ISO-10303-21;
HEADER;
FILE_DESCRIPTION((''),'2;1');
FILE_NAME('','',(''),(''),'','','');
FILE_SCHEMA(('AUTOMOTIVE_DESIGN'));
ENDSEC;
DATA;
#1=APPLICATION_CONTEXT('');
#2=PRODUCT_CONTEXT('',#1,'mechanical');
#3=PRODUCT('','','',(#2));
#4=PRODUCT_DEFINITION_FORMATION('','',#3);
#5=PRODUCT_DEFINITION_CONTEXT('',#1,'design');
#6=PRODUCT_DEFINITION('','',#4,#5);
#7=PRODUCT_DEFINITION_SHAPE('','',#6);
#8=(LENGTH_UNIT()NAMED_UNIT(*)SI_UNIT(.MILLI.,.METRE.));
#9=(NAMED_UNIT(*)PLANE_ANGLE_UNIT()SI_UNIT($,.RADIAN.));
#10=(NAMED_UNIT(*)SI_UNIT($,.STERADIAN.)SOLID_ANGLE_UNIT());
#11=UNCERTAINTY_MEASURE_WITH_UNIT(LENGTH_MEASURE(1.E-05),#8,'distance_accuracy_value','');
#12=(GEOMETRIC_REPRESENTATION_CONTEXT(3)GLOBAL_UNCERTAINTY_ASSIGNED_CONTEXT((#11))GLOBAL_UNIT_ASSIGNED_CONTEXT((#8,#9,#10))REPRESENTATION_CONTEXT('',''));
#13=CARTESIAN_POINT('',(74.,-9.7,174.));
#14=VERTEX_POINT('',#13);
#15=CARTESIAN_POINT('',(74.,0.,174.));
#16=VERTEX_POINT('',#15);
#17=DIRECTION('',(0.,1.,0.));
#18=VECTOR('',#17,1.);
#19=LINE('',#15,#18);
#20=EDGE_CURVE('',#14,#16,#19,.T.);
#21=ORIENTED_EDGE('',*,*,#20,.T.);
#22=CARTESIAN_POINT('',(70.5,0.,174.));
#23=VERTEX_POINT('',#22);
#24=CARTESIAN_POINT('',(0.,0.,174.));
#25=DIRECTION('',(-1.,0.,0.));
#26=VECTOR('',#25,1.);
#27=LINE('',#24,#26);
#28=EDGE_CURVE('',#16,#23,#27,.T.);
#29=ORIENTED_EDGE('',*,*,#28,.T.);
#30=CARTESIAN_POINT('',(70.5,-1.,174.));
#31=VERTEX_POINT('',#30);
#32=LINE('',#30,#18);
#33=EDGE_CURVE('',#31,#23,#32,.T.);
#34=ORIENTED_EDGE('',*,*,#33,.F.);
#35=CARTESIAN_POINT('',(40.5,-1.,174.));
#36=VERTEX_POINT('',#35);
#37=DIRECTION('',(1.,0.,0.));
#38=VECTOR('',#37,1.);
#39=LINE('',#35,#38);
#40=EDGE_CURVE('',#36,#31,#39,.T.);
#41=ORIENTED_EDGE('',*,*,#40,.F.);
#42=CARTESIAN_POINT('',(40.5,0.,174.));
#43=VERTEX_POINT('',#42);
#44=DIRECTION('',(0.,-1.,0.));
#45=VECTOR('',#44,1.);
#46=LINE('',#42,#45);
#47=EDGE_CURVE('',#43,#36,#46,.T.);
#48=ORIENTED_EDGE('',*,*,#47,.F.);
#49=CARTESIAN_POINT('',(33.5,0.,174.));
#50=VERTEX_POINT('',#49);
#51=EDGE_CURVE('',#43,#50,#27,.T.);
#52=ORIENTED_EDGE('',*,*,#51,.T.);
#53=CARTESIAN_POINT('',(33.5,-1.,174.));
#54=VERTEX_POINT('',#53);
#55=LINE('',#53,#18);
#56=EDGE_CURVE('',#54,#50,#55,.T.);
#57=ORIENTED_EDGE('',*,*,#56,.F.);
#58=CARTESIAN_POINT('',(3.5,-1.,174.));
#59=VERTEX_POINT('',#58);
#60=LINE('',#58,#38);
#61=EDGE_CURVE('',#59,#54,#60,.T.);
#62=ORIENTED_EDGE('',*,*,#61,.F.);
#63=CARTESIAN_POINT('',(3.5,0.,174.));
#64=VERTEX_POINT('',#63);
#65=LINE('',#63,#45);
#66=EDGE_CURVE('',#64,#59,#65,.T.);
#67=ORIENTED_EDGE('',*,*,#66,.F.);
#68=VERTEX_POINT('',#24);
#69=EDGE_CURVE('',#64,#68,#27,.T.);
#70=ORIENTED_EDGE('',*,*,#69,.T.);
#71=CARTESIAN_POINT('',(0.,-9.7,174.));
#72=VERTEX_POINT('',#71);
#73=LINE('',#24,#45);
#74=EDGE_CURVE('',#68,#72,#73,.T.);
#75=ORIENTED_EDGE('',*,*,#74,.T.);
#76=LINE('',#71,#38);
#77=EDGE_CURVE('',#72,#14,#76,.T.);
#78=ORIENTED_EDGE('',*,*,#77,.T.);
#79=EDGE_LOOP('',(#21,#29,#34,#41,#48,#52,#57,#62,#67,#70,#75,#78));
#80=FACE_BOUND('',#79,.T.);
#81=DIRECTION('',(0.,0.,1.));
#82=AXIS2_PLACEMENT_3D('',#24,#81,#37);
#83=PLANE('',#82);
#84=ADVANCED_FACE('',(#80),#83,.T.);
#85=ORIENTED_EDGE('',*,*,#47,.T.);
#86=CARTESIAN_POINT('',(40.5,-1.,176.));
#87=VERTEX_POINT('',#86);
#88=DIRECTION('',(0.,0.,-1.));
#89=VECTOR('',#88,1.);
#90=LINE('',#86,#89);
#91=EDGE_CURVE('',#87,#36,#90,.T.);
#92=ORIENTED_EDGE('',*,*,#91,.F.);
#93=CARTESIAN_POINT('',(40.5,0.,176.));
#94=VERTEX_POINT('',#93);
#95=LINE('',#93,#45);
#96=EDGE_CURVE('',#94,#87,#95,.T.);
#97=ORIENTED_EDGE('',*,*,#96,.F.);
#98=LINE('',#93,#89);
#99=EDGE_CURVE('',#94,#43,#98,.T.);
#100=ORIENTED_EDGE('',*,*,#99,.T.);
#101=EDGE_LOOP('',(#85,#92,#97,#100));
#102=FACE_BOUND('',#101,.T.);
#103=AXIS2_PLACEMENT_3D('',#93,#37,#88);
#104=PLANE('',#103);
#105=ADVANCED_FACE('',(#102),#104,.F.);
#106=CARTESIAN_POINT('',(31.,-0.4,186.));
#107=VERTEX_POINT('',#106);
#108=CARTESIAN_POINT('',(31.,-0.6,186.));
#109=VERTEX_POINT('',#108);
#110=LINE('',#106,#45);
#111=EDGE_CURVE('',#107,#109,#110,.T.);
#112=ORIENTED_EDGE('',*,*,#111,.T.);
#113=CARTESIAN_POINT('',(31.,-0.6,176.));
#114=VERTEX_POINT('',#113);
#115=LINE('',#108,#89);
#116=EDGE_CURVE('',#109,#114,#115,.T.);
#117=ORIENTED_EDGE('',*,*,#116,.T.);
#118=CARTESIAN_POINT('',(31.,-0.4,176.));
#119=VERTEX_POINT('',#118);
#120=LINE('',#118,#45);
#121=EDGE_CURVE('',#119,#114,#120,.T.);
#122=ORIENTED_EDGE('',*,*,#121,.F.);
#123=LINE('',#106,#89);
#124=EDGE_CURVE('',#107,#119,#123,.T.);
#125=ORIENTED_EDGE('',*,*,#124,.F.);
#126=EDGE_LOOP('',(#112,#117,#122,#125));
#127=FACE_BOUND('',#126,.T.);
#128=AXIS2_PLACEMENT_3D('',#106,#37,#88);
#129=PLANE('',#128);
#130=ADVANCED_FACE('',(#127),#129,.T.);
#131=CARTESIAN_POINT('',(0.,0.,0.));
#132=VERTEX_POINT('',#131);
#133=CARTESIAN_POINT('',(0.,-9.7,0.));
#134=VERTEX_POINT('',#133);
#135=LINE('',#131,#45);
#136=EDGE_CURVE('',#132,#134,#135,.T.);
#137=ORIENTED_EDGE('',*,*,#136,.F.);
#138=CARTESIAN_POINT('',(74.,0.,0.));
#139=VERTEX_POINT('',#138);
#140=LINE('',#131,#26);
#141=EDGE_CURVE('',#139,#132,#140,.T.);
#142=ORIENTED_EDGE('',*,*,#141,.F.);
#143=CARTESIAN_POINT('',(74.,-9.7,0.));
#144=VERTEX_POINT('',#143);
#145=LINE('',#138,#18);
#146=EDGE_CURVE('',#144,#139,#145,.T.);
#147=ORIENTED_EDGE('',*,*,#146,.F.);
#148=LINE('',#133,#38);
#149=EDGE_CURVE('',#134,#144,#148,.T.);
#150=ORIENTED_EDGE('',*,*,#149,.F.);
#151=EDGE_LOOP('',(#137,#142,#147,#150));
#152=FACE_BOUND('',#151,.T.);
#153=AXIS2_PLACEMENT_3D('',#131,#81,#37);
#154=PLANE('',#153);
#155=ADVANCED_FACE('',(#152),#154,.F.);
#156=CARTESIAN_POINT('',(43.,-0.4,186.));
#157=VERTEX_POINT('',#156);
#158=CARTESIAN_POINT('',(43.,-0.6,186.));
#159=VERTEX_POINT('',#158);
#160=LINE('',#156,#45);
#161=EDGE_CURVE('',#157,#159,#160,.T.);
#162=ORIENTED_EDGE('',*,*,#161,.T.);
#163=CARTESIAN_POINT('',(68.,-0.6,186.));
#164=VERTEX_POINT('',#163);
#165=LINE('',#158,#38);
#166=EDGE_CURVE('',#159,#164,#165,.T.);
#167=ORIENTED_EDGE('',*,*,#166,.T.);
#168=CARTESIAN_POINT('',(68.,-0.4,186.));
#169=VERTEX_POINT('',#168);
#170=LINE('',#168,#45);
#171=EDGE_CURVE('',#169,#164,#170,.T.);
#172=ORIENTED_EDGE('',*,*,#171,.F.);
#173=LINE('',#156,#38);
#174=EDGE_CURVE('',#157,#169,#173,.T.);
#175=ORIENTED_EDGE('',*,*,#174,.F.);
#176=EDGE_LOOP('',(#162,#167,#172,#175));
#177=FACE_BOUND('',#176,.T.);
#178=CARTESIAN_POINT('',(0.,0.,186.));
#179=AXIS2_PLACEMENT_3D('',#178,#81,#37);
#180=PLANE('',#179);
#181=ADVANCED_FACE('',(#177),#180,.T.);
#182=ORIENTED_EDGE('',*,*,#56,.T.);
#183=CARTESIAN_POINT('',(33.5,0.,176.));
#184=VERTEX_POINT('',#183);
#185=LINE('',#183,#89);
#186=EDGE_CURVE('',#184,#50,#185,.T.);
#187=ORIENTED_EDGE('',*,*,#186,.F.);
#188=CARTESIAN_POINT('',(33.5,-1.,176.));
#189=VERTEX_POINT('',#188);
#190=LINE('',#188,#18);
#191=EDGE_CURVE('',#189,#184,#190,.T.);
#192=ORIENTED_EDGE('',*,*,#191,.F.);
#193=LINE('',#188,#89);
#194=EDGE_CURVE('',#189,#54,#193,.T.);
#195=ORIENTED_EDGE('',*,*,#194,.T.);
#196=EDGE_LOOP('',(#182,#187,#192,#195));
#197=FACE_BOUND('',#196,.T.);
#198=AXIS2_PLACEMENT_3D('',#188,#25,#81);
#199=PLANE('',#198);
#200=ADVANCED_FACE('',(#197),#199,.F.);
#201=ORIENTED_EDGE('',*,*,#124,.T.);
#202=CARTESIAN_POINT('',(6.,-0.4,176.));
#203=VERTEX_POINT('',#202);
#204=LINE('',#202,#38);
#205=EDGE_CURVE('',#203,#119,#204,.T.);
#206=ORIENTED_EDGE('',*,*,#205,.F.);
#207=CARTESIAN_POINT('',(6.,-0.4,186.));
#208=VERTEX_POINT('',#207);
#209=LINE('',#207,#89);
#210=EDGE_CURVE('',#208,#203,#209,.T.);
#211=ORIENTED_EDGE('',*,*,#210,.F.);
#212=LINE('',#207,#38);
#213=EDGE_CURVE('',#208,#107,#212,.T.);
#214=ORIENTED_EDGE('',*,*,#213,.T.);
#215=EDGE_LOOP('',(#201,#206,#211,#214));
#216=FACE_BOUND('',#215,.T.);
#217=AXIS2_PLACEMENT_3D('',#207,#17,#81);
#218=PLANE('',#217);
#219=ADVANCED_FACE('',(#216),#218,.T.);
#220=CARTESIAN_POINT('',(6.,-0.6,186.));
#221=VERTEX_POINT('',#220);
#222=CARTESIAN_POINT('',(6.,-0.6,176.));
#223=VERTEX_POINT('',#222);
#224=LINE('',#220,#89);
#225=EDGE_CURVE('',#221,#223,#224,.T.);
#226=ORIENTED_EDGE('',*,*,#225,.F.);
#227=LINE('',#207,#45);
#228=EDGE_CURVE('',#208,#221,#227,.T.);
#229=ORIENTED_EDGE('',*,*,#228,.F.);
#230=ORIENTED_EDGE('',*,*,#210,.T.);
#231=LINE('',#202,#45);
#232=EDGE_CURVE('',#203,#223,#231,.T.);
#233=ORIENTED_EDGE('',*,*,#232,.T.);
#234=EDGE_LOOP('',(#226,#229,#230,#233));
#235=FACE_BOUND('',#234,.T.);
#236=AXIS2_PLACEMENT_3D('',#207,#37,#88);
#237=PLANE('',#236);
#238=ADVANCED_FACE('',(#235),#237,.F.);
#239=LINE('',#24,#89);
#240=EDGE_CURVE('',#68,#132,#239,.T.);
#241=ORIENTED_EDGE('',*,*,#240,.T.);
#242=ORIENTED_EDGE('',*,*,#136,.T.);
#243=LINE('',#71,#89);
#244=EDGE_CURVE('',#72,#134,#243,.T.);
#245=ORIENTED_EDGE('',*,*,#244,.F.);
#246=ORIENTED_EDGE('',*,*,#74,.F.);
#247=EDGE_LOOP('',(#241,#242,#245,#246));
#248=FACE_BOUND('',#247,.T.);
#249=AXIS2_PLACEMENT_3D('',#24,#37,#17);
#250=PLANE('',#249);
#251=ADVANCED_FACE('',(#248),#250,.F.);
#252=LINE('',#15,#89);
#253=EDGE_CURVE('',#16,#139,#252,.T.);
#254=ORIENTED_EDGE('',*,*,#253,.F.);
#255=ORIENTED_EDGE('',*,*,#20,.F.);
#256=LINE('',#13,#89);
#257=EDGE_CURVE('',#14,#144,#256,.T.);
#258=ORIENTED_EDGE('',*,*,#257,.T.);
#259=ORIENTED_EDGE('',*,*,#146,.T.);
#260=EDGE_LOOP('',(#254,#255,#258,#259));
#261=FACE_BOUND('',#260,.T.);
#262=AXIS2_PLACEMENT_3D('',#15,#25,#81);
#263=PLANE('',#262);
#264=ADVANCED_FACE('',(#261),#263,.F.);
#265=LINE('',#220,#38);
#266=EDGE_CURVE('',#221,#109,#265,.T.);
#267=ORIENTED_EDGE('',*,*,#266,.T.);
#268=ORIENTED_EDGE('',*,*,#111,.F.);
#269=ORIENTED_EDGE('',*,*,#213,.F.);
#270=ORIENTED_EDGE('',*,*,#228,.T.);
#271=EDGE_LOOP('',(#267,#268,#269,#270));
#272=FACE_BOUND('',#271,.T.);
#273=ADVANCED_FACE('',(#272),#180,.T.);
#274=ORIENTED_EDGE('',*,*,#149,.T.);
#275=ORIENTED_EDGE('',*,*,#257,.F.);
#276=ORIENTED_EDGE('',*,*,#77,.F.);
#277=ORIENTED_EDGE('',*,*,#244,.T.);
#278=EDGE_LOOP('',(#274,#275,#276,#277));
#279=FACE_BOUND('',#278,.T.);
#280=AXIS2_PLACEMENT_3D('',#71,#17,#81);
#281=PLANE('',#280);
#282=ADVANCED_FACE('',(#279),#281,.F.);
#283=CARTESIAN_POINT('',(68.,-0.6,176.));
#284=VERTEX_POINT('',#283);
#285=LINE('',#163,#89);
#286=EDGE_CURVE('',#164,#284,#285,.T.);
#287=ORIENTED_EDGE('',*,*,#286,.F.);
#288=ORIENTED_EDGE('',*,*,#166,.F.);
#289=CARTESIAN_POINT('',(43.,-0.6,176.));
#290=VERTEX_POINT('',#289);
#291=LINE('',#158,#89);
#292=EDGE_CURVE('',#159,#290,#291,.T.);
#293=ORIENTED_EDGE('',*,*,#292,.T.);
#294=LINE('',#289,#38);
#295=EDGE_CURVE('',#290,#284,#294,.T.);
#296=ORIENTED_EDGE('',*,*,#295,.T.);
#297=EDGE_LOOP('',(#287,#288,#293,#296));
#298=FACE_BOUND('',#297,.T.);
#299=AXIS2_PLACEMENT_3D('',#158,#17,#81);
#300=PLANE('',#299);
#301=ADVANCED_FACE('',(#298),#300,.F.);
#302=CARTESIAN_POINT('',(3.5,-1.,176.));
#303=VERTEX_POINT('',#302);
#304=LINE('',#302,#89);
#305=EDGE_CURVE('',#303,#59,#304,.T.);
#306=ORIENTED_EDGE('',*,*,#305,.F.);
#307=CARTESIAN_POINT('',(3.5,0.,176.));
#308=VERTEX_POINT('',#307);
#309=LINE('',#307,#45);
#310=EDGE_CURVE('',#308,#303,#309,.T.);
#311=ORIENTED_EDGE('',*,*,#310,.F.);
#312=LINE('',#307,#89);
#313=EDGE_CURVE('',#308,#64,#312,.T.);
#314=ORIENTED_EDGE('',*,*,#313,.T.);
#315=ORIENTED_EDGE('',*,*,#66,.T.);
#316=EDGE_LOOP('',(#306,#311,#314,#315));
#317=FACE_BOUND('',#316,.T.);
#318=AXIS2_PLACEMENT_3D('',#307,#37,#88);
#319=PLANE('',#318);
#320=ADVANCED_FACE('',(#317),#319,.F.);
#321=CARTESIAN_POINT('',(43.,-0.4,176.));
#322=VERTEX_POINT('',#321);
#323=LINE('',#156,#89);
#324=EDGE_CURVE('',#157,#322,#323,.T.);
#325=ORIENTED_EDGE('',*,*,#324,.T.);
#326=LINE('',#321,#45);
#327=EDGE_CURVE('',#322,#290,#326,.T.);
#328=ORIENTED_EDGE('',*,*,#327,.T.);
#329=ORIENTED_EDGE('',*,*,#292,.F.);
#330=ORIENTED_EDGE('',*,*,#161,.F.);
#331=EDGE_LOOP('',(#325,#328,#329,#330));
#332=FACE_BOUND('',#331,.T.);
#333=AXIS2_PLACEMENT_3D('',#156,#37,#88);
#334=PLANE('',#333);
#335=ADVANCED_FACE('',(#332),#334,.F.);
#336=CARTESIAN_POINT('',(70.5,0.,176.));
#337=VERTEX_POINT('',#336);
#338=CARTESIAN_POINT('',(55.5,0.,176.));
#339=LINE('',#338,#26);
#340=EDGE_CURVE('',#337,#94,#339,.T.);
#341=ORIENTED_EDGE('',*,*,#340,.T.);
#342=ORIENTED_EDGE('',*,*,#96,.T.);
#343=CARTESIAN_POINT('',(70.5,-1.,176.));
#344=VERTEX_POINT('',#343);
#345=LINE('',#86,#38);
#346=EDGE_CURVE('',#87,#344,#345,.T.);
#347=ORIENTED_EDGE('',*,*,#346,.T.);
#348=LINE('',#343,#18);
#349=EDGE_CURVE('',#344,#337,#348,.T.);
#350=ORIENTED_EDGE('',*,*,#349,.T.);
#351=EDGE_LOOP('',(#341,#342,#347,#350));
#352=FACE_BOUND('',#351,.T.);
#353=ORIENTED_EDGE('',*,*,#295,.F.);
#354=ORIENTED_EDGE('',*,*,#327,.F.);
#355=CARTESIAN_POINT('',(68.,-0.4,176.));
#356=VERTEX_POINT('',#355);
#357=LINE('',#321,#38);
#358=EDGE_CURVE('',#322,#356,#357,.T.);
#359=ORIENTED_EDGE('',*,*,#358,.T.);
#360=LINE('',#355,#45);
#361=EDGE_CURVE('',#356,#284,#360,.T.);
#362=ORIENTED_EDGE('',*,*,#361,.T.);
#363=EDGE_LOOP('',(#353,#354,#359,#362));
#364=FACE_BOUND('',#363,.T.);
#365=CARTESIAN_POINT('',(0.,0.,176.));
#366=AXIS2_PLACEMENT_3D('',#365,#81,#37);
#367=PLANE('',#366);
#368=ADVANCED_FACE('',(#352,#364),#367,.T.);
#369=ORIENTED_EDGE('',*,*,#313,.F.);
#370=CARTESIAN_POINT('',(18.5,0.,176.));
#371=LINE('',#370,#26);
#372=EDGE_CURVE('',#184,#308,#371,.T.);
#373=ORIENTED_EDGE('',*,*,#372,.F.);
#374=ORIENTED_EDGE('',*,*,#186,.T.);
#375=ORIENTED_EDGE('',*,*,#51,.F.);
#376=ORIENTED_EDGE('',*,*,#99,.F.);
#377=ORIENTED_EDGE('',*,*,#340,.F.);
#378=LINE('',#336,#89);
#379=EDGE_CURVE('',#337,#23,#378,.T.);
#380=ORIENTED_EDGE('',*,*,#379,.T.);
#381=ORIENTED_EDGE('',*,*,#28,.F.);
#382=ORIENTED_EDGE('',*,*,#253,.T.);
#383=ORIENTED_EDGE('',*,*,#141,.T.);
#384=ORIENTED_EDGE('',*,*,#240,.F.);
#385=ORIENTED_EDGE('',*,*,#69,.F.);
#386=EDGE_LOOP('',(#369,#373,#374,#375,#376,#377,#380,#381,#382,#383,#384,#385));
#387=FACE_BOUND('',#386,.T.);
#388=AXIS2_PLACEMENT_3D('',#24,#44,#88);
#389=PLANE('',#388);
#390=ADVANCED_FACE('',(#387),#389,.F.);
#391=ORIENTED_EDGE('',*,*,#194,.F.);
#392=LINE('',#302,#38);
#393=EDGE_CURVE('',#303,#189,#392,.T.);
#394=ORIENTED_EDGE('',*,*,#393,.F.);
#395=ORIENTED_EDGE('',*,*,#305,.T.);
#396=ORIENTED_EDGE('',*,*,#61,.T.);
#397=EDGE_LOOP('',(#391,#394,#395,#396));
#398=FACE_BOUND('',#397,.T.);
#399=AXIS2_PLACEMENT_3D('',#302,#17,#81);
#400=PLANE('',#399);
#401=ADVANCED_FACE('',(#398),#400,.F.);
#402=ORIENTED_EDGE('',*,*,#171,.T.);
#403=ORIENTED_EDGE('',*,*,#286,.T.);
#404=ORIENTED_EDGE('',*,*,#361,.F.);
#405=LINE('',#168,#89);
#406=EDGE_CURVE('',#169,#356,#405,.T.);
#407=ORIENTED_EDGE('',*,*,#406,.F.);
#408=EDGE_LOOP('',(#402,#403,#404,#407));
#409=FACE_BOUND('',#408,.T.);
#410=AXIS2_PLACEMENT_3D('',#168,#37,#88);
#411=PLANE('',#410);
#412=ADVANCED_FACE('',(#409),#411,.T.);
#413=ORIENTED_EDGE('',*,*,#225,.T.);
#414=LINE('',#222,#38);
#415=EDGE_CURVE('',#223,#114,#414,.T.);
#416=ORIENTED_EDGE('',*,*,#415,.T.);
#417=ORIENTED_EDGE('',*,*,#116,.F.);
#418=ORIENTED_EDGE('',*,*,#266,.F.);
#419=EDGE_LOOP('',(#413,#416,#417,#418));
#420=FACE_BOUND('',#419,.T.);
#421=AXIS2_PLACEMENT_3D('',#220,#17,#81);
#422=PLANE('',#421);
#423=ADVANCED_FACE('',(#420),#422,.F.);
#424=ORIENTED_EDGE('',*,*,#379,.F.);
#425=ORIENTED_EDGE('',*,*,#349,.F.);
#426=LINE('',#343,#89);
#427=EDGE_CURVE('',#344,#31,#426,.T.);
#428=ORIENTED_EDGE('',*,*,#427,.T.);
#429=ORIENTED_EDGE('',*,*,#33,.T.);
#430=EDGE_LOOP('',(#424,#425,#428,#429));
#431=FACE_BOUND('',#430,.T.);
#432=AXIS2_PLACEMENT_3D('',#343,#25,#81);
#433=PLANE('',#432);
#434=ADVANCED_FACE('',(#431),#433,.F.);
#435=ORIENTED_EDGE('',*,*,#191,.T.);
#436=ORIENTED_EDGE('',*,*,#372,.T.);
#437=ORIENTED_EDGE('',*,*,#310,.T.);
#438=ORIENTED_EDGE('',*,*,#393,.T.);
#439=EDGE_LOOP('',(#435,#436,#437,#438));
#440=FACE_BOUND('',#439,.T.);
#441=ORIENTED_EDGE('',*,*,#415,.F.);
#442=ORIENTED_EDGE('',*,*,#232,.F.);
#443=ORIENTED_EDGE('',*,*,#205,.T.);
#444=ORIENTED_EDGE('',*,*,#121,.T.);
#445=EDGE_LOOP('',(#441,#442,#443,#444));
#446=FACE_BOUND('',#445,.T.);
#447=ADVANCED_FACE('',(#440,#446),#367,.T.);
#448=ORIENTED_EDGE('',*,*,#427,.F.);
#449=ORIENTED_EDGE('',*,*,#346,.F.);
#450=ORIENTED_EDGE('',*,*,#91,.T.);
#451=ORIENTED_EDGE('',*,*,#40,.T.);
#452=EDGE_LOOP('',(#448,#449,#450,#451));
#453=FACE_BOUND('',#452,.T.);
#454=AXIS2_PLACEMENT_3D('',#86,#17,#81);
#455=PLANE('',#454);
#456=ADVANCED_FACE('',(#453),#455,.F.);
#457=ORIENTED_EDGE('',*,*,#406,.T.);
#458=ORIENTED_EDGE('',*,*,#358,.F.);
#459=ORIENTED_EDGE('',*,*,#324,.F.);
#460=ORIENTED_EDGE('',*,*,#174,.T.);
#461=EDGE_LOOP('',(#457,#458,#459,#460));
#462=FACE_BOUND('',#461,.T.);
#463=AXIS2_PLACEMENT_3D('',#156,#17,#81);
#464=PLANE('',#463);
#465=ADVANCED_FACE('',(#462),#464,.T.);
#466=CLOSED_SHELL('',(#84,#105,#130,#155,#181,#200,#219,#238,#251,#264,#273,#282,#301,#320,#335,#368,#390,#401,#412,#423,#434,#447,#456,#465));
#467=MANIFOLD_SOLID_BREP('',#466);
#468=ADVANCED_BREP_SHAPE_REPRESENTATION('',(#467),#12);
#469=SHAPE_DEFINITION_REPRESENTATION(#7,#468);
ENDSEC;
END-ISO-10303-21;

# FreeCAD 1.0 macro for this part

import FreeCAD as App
import Part
import Sketcher
from FreeCAD import Vector
Q = App.Units.Quantity


def add_polygon(sketch, points):
    """Adds a closed chain of lines whose ends are joined by coincident constraints."""
    first, n = sketch.GeometryCount, len(points)
    for a, b in zip(points, points[1:] + points[:1]):
        sketch.addGeometry(Part.LineSegment(App.Vector(*a, 0), App.Vector(*b, 0)), False)
    for i in range(n):
        sketch.addConstraint(Sketcher.Constraint("Coincident", first + i, 2, first + (i + 1) % n, 1))

doc = App.newDocument("Part")
body = doc.addObject("PartDesign::Body", "Body")

sketch1 = doc.addObject("Sketcher::SketchObject", "Sketch")
body.addObject(sketch1)
sketch1.AttachmentSupport = (doc.XY_Plane, [""])
sketch1.MapMode = "FlatFace"
add_polygon(sketch1, [(0, 0), (0, -10), (74, -10), (74, 0)])
sketch1.addConstraint([
    Sketcher.Constraint("Vertical", 0),
    Sketcher.Constraint("Horizontal", 1),
    Sketcher.Constraint("Vertical", 2),
    Sketcher.Constraint("Horizontal", 3),
    Sketcher.Constraint("Coincident", 3, 2, -1, 1),
    Sketcher.Constraint("DistanceX", 1, 1, 1, 2, Q("74 mm")),
    Sketcher.Constraint("DistanceY", 0, 2, 0, 1, Q("9.7 mm")),
])
pad1 = doc.addObject("PartDesign::Pad", "Pad")
body.addObject(pad1)
pad1.Profile = sketch1
pad1.Length = 174

sketch2 = doc.addObject("Sketcher::SketchObject", "Sketch001")
body.addObject(sketch2)
sketch2.AttachmentSupport = (doc.XY_Plane, [""])
sketch2.MapMode = "FlatFace"
sketch2.AttachmentOffset = App.Placement(Vector(0, 0, 174), App.Rotation())
add_polygon(sketch2, [(3.5, 0), (3.5, -1), (33.5, -1), (33.5, 0)])
add_polygon(sketch2, [(40.5, 0), (40.5, -1), (70.5, -1), (70.5, 0)])
sketch2.addConstraint([
    Sketcher.Constraint("Vertical", 0),
    Sketcher.Constraint("Horizontal", 1),
    Sketcher.Constraint("Vertical", 2),
    Sketcher.Constraint("Horizontal", 3),
    Sketcher.Constraint("Vertical", 4),
    Sketcher.Constraint("Horizontal", 5),
    Sketcher.Constraint("Vertical", 6),
    Sketcher.Constraint("Horizontal", 7),
    Sketcher.Constraint("PointOnObject", 2, 2, -1),
    Sketcher.Constraint("PointOnObject", 6, 2, -1),
    Sketcher.Constraint("Horizontal", 1, 2, 4, 2),
    Sketcher.Constraint("Equal", 3, 5),
    Sketcher.Constraint("DistanceX", 1, 1, 1, 2, Q("30 mm")),
    Sketcher.Constraint("DistanceY", 0, 2, 0, 1, Q("1 mm")),
    Sketcher.Constraint("DistanceX", 1, 2, 4, 2, Q("7 mm")),
    Sketcher.Constraint("DistanceX", -1, 1, 0, 2, Q("3.5 mm")),
])
pad2 = doc.addObject("PartDesign::Pad", "Pad001")
body.addObject(pad2)
pad2.Profile = sketch2
pad2.Length = 2

sketch3 = doc.addObject("Sketcher::SketchObject", "Sketch002")
body.addObject(sketch3)
sketch3.AttachmentSupport = (doc.XY_Plane, [""])
sketch3.MapMode = "FlatFace"
sketch3.AttachmentOffset = App.Placement(Vector(0, 0, 176), App.Rotation())
add_polygon(sketch3, [(6, -0.4), (6, -0.6), (31, -0.6), (31, -0.4)])
sketch3.addConstraint([
    Sketcher.Constraint("Vertical", 0),
    Sketcher.Constraint("Horizontal", 1),
    Sketcher.Constraint("Vertical", 2),
    Sketcher.Constraint("Horizontal", 3),
    Sketcher.Constraint("DistanceX", 1, 1, 1, 2, Q("25 mm")),
    Sketcher.Constraint("DistanceY", 0, 2, 0, 1, Q("0.2 mm")),
    Sketcher.Constraint("DistanceX", -1, 1, 0, 2, Q("6 mm")),
    Sketcher.Constraint("DistanceY", 0, 2, -1, 1, Q("0.6 mm")),
])
pad3 = doc.addObject("PartDesign::Pad", "Pad002")
body.addObject(pad3)
pad3.Profile = sketch3
pad3.Length = 10

sketch4 = doc.addObject("Sketcher::SketchObject", "Sketch003")
body.addObject(sketch4)
sketch4.AttachmentSupport = (doc.XY_Plane, [""])
sketch4.MapMode = "FlatFace"
sketch4.AttachmentOffset = App.Placement(Vector(0, 0, 176), App.Rotation())
add_polygon(sketch4, [(43, -0.4), (43, -0.6), (68, -0.6), (68, -0.4)])
sketch4.addConstraint([
    Sketcher.Constraint("Vertical", 0),
    Sketcher.Constraint("Horizontal", 1),
    Sketcher.Constraint("Vertical", 2),
    Sketcher.Constraint("Horizontal", 3),
    Sketcher.Constraint("DistanceX", 1, 1, 1, 2, Q("25 mm")),
    Sketcher.Constraint("DistanceY", 0, 2, 0, 1, Q("0.2 mm")),
    Sketcher.Constraint("DistanceX", -1, 1, 0, 2, Q("43 mm")),
    Sketcher.Constraint("DistanceY", 0, 2, -1, 1, Q("0.6 mm")),
])
pad4 = doc.addObject("PartDesign::Pad", "Pad003")
body.addObject(pad4)
pad4.Profile = sketch4
pad4.Length = 10

doc.recompute()
